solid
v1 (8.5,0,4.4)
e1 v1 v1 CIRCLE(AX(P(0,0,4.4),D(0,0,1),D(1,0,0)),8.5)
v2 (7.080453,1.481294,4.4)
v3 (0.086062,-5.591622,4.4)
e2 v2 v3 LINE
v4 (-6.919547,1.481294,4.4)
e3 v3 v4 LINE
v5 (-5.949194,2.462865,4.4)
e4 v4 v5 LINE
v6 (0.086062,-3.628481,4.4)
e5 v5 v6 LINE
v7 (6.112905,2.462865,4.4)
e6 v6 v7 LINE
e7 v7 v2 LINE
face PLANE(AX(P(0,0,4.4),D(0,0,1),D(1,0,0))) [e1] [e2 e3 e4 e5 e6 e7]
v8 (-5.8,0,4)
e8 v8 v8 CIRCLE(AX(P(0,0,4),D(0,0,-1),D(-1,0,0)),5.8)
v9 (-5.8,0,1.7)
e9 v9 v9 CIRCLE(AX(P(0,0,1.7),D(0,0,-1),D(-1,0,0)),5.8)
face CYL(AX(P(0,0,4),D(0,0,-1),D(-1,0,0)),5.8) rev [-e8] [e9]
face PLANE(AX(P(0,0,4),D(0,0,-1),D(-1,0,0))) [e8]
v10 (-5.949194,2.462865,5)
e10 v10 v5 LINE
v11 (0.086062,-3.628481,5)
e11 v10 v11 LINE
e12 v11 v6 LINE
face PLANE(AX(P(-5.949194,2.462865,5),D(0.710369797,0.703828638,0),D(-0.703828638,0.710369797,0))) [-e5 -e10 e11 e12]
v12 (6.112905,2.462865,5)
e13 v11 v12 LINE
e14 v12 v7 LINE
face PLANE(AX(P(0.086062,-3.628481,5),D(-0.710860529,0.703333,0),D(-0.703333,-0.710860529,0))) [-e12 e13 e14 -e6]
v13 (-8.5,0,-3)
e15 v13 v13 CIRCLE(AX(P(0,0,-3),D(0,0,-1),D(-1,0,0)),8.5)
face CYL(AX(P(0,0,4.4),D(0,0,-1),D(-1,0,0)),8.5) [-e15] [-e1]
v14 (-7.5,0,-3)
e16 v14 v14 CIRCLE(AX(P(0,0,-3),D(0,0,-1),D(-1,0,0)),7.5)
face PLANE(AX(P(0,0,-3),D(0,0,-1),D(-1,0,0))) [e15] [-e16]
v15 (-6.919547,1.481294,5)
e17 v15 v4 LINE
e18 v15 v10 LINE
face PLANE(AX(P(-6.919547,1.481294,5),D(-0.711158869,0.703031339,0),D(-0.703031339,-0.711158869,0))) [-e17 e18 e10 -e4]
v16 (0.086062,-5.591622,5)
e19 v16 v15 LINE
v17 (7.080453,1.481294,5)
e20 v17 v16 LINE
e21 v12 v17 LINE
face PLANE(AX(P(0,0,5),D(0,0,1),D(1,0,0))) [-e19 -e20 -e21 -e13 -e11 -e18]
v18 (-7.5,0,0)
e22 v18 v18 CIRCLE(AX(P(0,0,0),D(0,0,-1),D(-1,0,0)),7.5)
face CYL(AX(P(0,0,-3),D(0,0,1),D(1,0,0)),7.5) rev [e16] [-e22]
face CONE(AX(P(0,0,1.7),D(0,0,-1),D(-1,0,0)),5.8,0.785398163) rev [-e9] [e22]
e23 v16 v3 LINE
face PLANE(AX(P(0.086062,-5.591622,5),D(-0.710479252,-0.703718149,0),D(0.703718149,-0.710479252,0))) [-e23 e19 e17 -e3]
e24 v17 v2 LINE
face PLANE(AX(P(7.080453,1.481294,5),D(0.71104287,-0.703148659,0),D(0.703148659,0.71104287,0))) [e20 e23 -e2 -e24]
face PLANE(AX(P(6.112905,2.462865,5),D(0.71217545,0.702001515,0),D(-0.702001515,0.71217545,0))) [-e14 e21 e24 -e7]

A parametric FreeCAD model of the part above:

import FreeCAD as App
import Part
import Sketcher

V = App.Vector

doc = App.newDocument("Part")
body = doc.addObject("PartDesign::Body", "Body")

# Sketch on XY plane
sketch1 = body.newObject("Sketcher::SketchObject", "Sketch")
sketch1.AttachmentSupport = (doc.getObject("XY_Plane"), [""])
sketch1.MapMode = "FlatFace"
sketch1.addGeometry(Part.Circle(V(0, 0, 0), V(0, 0, 1), 8), False)
sketch1.addConstraint(Sketcher.Constraint("Coincident", 0, 3, -1, 1))
sketch1.addConstraint(Sketcher.Constraint("Diameter", 0, 17.0))
pad1 = body.newObject("PartDesign::Pad", "Pad")
pad1.Profile = sketch1
pad1.Length = 4.4

# Sketch on XY plane
sketch2 = body.newObject("Sketcher::SketchObject", "Sketch001")
sketch2.AttachmentSupport = (doc.getObject("XY_Plane"), [""])
sketch2.MapMode = "FlatFace"
sketch2.addGeometry(Part.Circle(V(0, 0, 0), V(0, 0, 1), 6), False)
sketch2.addConstraint(Sketcher.Constraint("Coincident", 0, 3, -1, 1))
sketch2.addConstraint(Sketcher.Constraint("Diameter", 0, 11.6))
pocket1 = body.newObject("PartDesign::Pocket", "Pocket")
pocket1.Profile = sketch2
pocket1.Length = 4
pocket1.Reversed = True

# Sketch on XY plane
sketch3 = body.newObject("Sketcher::SketchObject", "Sketch002")
sketch3.AttachmentSupport = (doc.getObject("XY_Plane"), [""])
sketch3.MapMode = "FlatFace"
sketch3.AttachmentOffset = App.Placement(V(0, 0, -3), App.Rotation())
sketch3.addGeometry(Part.Circle(V(0, 0, 0), V(0, 0, 1), 8), False)
sketch3.addGeometry(Part.Circle(V(0, 0, 0), V(0, 0, 1), 8), False)
sketch3.addConstraint(Sketcher.Constraint("Coincident", 0, 3, -1, 1))
sketch3.addConstraint(Sketcher.Constraint("Coincident", 1, 3, -1, 1))
sketch3.addConstraint(Sketcher.Constraint("Diameter", 0, 17.0))
sketch3.addConstraint(Sketcher.Constraint("Diameter", 1, 15.0))
pad2 = body.newObject("PartDesign::Pad", "Pad001")
pad2.Profile = sketch3
pad2.Length = 3

# Sketch on XZ plane
sketch4 = body.newObject("Sketcher::SketchObject", "Sketch003")
sketch4.AttachmentSupport = (doc.getObject("XZ_Plane"), [""])
sketch4.MapMode = "FlatFace"
sketch4.addGeometry(Part.LineSegment(V(5.8, 1.7, 0), V(7.5, 0, 0)), False)
sketch4.addGeometry(Part.LineSegment(V(7.5, 0, 0), V(5.8, 0, 0)), False)
sketch4.addGeometry(Part.LineSegment(V(5.8, 0, 0), V(5.8, 1.7, 0)), False)
sketch4.addConstraint(Sketcher.Constraint("Coincident", 0, 2, 1, 1))
sketch4.addConstraint(Sketcher.Constraint("Coincident", 1, 2, 2, 1))
sketch4.addConstraint(Sketcher.Constraint("Coincident", 2, 2, 0, 1))
sketch4.addConstraint(Sketcher.Constraint("Horizontal", 1))
sketch4.addConstraint(Sketcher.Constraint("Vertical", 2))
sketch4.addConstraint(Sketcher.Constraint("PointOnObject", 0, 2, -1))
sketch4.addConstraint(Sketcher.Constraint("Equal", 1, 2))
sketch4.addConstraint(Sketcher.Constraint("DistanceX", 1, 2, 1, 1, 1.7))
sketch4.addConstraint(Sketcher.Constraint("DistanceX", -1, 1, 0, 2, 7.5))
groove = body.newObject("PartDesign::Groove", "Groove")
groove.Profile = sketch4
groove.ReferenceAxis = (sketch4, ["V_Axis"])
groove.Angle = 360

# Sketch on XY plane
sketch5 = body.newObject("Sketcher::SketchObject", "Sketch004")
sketch5.AttachmentSupport = (doc.getObject("XY_Plane"), [""])
sketch5.MapMode = "FlatFace"
sketch5.AttachmentOffset = App.Placement(V(0, 0, 4.4), App.Rotation())
sketch5.addGeometry(Part.LineSegment(V(-6.9, 1.5, 0), V(0.1, -5.6, 0)), False)
sketch5.addGeometry(Part.LineSegment(V(0.1, -5.6, 0), V(7.1, 1.5, 0)), False)
sketch5.addGeometry(Part.LineSegment(V(7.1, 1.5, 0), V(6.1, 2.5, 0)), False)
sketch5.addGeometry(Part.LineSegment(V(6.1, 2.5, 0), V(0.1, -3.6, 0)), False)
sketch5.addGeometry(Part.LineSegment(V(0.1, -3.6, 0), V(-5.9, 2.5, 0)), False)
sketch5.addGeometry(Part.LineSegment(V(-5.9, 2.5, 0), V(-6.9, 1.5, 0)), False)
sketch5.addConstraint(Sketcher.Constraint("Coincident", 0, 2, 1, 1))
sketch5.addConstraint(Sketcher.Constraint("Coincident", 1, 2, 2, 1))
sketch5.addConstraint(Sketcher.Constraint("Coincident", 2, 2, 3, 1))
sketch5.addConstraint(Sketcher.Constraint("Coincident", 3, 2, 4, 1))
sketch5.addConstraint(Sketcher.Constraint("Coincident", 4, 2, 5, 1))
sketch5.addConstraint(Sketcher.Constraint("Coincident", 5, 2, 0, 1))
sketch5.addConstraint(Sketcher.Constraint("Horizontal", 2, 2, 4, 2))
sketch5.addConstraint(Sketcher.Constraint("Horizontal", 1, 2, 5, 2))
sketch5.addConstraint(Sketcher.Constraint("Vertical", 0, 2, 3, 2))
sketch5.addConstraint(Sketcher.Constraint("DistanceX", 5, 2, 1, 2, 14.0))
sketch5.addConstraint(Sketcher.Constraint("DistanceX", 4, 2, 2, 2, 12.062099))
sketch5.addConstraint(Sketcher.Constraint("Distance", 2, 1.378271))
sketch5.addConstraint(Sketcher.Constraint("Distance", 5, 1.380241))
sketch5.addConstraint(Sketcher.Constraint("DistanceY", 3, 2, -1, 1, 3.628481))
sketch5.addConstraint(Sketcher.Constraint("DistanceX", 0, 2, 1, 2, 6.994391))
sketch5.addConstraint(Sketcher.Constraint("DistanceY", 0, 2, 3, 2, 1.963141))
sketch5.addConstraint(Sketcher.Constraint("Distance", 0, 9.955135))
sketch5.addConstraint(Sketcher.Constraint("DistanceX", -1, 1, 0, 2, 0.086062))
pad3 = body.newObject("PartDesign::Pad", "Pad002")
pad3.Profile = sketch5
pad3.Length = 0.6

doc.recompute()
